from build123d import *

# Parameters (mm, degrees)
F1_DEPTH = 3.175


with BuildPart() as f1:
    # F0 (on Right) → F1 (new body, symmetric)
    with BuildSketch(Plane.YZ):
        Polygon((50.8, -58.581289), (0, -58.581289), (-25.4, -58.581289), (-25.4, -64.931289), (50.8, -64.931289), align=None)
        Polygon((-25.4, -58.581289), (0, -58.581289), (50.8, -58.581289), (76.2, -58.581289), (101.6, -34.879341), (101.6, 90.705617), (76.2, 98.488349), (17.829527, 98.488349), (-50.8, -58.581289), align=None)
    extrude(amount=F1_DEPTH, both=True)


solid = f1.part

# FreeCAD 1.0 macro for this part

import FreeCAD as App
import Part
import Sketcher

V = App.Vector
Q = App.Units.Quantity

doc = App.newDocument("Part")
body = doc.addObject("PartDesign::Body", "Body")

sketch1 = body.newObject("Sketcher::SketchObject", "Sketch")
sketch1.AttachmentSupport = (doc.getObject("YZ_Plane"), [""])
sketch1.MapMode = "FlatFace"
sketch1.addGeometry(Part.LineSegment(V(-25.4, -58.581289, 0), V(-25.4, -64.931289, 0)), False)
sketch1.addGeometry(Part.LineSegment(V(-25.4, -64.931289, 0), V(50.8, -64.931289, 0)), False)
sketch1.addGeometry(Part.LineSegment(V(50.8, -64.931289, 0), V(50.8, -58.581289, 0)), False)
sketch1.addGeometry(Part.LineSegment(V(50.8, -58.581289, 0), V(76.2, -58.581289, 0)), False)
sketch1.addGeometry(Part.LineSegment(V(76.2, -58.581289, 0), V(101.6, -34.879341, 0)), False)
sketch1.addGeometry(Part.LineSegment(V(101.6, -34.879341, 0), V(101.6, 90.705617, 0)), False)
sketch1.addGeometry(Part.LineSegment(V(101.6, 90.705617, 0), V(76.2, 98.488349, 0)), False)
sketch1.addGeometry(Part.LineSegment(V(76.2, 98.488349, 0), V(17.829527, 98.488349, 0)), False)
sketch1.addGeometry(Part.LineSegment(V(17.829527, 98.488349, 0), V(-50.8, -58.581289, 0)), False)
sketch1.addGeometry(Part.LineSegment(V(-50.8, -58.581289, 0), V(-25.4, -58.581289, 0)), False)
sketch1.addConstraint(Sketcher.Constraint("Coincident", 0, 2, 1, 1))
sketch1.addConstraint(Sketcher.Constraint("Coincident", 1, 2, 2, 1))
sketch1.addConstraint(Sketcher.Constraint("Coincident", 2, 2, 3, 1))
sketch1.addConstraint(Sketcher.Constraint("Coincident", 3, 2, 4, 1))
sketch1.addConstraint(Sketcher.Constraint("Coincident", 4, 2, 5, 1))
sketch1.addConstraint(Sketcher.Constraint("Coincident", 5, 2, 6, 1))
sketch1.addConstraint(Sketcher.Constraint("Coincident", 6, 2, 7, 1))
sketch1.addConstraint(Sketcher.Constraint("Coincident", 7, 2, 8, 1))
sketch1.addConstraint(Sketcher.Constraint("Coincident", 8, 2, 9, 1))
sketch1.addConstraint(Sketcher.Constraint("Coincident", 9, 2, 0, 1))
sketch1.addConstraint(Sketcher.Constraint("Vertical", 0))
sketch1.addConstraint(Sketcher.Constraint("Horizontal", 1))
sketch1.addConstraint(Sketcher.Constraint("Vertical", 2))
sketch1.addConstraint(Sketcher.Constraint("Horizontal", 3))
sketch1.addConstraint(Sketcher.Constraint("Vertical", 5))
sketch1.addConstraint(Sketcher.Constraint("Horizontal", 7))
sketch1.addConstraint(Sketcher.Constraint("Horizontal", 9))
sketch1.addConstraint(Sketcher.Constraint("Symmetric", 2, 2, 8, 2, -2))
sketch1.addConstraint(Sketcher.Constraint("Vertical", 3, 2, 6, 2))
sketch1.addConstraint(Sketcher.Constraint("Equal", 3, 9))
sketch1.addConstraint(Sketcher.Constraint("DistanceX", 1, 1, 1, 2, Q("3 in")))
sketch1.addConstraint(Sketcher.Constraint("DistanceX", 3, 1, 3, 2, Q("1 in")))
sketch1.addConstraint(Sketcher.Constraint("DistanceX", -1, 1, 4, 2, Q("4 in")))
sketch1.addConstraint(Sketcher.Constraint("DistanceY", 0, 2, 0, 1, Q("0.25 in")))
sketch1.addConstraint(Sketcher.Constraint("DistanceY", 5, 1, 5, 2, Q("125.584958 mm")))
sketch1.addConstraint(Sketcher.Constraint("DistanceX", 7, 2, 7, 1, Q("58.370473 mm")))
sketch1.addConstraint(Sketcher.Constraint("DistanceY", 0, 2, -1, 1, Q("64.931289 mm")))
sketch1.addConstraint(Sketcher.Constraint("DistanceY", 4, 2, -1, 1, Q("34.879341 mm")))
sketch1.addConstraint(Sketcher.Constraint("DistanceY", -1, 1, 6, 2, Q("98.488349 mm")))
pad1 = body.newObject("PartDesign::Pad", "Pad")
pad1.Profile = sketch1
pad1.Length = Q("0.25 in")
pad1.Midplane = True

doc.recompute()
